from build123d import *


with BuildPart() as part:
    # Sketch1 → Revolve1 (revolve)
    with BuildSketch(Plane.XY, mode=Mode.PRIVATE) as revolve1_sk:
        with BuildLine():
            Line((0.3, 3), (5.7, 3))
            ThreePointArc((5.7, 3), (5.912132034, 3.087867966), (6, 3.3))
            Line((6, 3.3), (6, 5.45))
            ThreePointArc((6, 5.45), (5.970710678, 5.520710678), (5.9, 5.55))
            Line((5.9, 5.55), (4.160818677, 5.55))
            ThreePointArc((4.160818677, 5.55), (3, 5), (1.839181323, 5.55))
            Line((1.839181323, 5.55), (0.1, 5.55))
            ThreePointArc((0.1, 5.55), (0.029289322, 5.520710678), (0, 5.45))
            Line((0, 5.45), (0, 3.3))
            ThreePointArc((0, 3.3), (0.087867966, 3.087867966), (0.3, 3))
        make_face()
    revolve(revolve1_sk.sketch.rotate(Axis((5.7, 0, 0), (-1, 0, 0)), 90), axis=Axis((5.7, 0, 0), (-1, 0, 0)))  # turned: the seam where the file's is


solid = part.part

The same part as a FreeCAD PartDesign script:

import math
import FreeCAD as App
import Part
import Sketcher

V = App.Vector
Q = App.Units.Quantity

doc = App.newDocument("Part")
body = doc.addObject("PartDesign::Body", "Body")

# Sketch on XY plane
sketch1 = doc.addObject("Sketcher::SketchObject", "Sketch")
body.addObject(sketch1)
sketch1.AttachmentSupport = (doc.XY_Plane, [""])
sketch1.MapMode = "FlatFace"
sketch1.addGeometry(Part.LineSegment(V(0.3, 3, 0), V(5.7, 3, 0)), False)
sketch1.addGeometry(Part.ArcOfCircle(Part.Circle(V(5.7, 3.3, 0), V(0, 0, 1), 0.3), math.radians(-90), math.radians(0)), False)
sketch1.addGeometry(Part.LineSegment(V(6, 3.3, 0), V(6, 5.45, 0)), False)
sketch1.addGeometry(Part.ArcOfCircle(Part.Circle(V(5.9, 5.45, 0), V(0, 0, 1), 0.1), math.radians(0), math.radians(90)), False)
sketch1.addGeometry(Part.LineSegment(V(5.9, 5.55, 0), V(4.160819, 5.55, 0)), False)
sketch1.addGeometry(Part.ArcOfCircle(Part.Circle(V(3, 6.5, 0), V(0, 0, 1), 1.5), math.radians(-140.70352), math.radians(-39.29648)), False)
sketch1.addGeometry(Part.LineSegment(V(1.839181, 5.55, 0), V(0.1, 5.55, 0)), False)
sketch1.addGeometry(Part.ArcOfCircle(Part.Circle(V(0.1, 5.45, 0), V(0, 0, 1), 0.1), math.radians(90), math.radians(180)), False)
sketch1.addGeometry(Part.LineSegment(V(0, 5.45, 0), V(0, 3.3, 0)), False)
sketch1.addGeometry(Part.ArcOfCircle(Part.Circle(V(0.3, 3.3, 0), V(0, 0, 1), 0.3), math.radians(-180), math.radians(-90)), False)
sketch1.addConstraint(Sketcher.Constraint("Tangent", 0, 2, 1, 1))
sketch1.addConstraint(Sketcher.Constraint("Tangent", 1, 2, 2, 1))
sketch1.addConstraint(Sketcher.Constraint("Tangent", 2, 2, 3, 1))
sketch1.addConstraint(Sketcher.Constraint("Tangent", 3, 2, 4, 1))
sketch1.addConstraint(Sketcher.Constraint("Coincident", 4, 2, 5, 2))
sketch1.addConstraint(Sketcher.Constraint("Coincident", 5, 1, 6, 1))
sketch1.addConstraint(Sketcher.Constraint("Tangent", 6, 2, 7, 1))
sketch1.addConstraint(Sketcher.Constraint("Tangent", 7, 2, 8, 1))
sketch1.addConstraint(Sketcher.Constraint("Tangent", 8, 2, 9, 1))
sketch1.addConstraint(Sketcher.Constraint("Tangent", 9, 2, 0, 1))
sketch1.addConstraint(Sketcher.Constraint("Horizontal", 0))
sketch1.addConstraint(Sketcher.Constraint("Vertical", 2))
sketch1.addConstraint(Sketcher.Constraint("Horizontal", 4))
sketch1.addConstraint(Sketcher.Constraint("Horizontal", 6))
sketch1.addConstraint(Sketcher.Constraint("Vertical", 8))
sketch1.addConstraint(Sketcher.Constraint("Equal", 3, 7))
sketch1.addConstraint(Sketcher.Constraint("Equal", 1, 9))
sketch1.addConstraint(Sketcher.Constraint("PointOnObject", 7, 2, -2))
sketch1.addConstraint(Sketcher.Constraint("Horizontal", 3, 3, 7, 3))
sketch1.addConstraint(Sketcher.Constraint("Equal", 4, 6))
sketch1.addConstraint(Sketcher.Constraint("Radius", 1, Q("0.3 mm")))
sketch1.addConstraint(Sketcher.Constraint("Radius", 3, Q("0.1 mm")))
sketch1.addConstraint(Sketcher.Constraint("Radius", 5, Q("1.5 mm")))
sketch1.addConstraint(Sketcher.Constraint("DistanceX", 0, 1, 0, 2, Q("5.4 mm")))
sketch1.addConstraint(Sketcher.Constraint("DistanceY", -1, 1, 0, 2, Q("3 mm")))
sketch1.addConstraint(Sketcher.Constraint("DistanceY", 2, 1, 2, 2, Q("2.15 mm")))
sketch1.addConstraint(Sketcher.Constraint("DistanceY", -1, 1, 5, 3, Q("6.5 mm")))
revolution = doc.addObject("PartDesign::Revolution", "Revolution")
body.addObject(revolution)
revolution.Profile = sketch1
revolution.ReferenceAxis = (sketch1, ["H_Axis"])
revolution.Angle = 360

doc.recompute()
